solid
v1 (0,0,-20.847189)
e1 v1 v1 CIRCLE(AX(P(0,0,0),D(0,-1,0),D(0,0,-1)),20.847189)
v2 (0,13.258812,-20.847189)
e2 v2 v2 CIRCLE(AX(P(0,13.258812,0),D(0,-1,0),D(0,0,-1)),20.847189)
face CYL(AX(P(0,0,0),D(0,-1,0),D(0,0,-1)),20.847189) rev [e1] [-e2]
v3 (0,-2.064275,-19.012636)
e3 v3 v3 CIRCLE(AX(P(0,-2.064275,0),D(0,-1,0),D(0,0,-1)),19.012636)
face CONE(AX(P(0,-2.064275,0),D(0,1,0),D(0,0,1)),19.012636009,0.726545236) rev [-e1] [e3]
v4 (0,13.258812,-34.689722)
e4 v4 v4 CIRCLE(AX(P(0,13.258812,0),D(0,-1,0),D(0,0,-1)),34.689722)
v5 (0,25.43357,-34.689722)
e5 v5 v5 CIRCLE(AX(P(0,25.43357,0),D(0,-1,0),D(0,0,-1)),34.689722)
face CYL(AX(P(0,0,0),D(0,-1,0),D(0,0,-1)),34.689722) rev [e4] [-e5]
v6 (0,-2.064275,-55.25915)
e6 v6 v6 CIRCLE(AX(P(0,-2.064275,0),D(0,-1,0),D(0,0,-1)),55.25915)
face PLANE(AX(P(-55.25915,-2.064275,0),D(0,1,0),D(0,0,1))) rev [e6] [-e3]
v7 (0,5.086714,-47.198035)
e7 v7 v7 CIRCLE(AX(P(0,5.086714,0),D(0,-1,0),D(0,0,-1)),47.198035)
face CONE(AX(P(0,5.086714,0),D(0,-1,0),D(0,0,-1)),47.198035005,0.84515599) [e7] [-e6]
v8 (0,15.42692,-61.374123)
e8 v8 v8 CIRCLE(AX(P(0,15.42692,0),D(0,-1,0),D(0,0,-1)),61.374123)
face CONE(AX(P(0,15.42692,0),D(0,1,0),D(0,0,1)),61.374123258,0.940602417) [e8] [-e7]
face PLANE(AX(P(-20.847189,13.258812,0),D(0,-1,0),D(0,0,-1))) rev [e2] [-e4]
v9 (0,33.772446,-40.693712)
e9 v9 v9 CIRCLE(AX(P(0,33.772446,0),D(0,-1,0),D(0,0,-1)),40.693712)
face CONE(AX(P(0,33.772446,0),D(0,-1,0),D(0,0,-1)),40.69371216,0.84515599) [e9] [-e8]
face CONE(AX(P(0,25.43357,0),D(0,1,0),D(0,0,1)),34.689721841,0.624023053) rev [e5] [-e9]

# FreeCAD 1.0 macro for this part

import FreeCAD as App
import Part
import Sketcher

V = App.Vector
Q = App.Units.Quantity

doc = App.newDocument("Part")
body = doc.addObject("PartDesign::Body", "Body")

sketch1 = body.newObject("Sketcher::SketchObject", "Sketch")
sketch1.AttachmentSupport = (doc.getObject("XY_Plane"), [""])
sketch1.MapMode = "FlatFace"
sketch1.addGeometry(Part.LineSegment(V(-20.8, 0, 0), V(-20.8, 13.3, 0)), False)
sketch1.addGeometry(Part.LineSegment(V(-20.8, 13.3, 0), V(-34.7, 13.3, 0)), False)
sketch1.addGeometry(Part.LineSegment(V(-34.7, 13.3, 0), V(-34.7, 25.4, 0)), False)
sketch1.addGeometry(Part.LineSegment(V(-34.7, 25.4, 0), V(-40.7, 33.8, 0)), False)
sketch1.addGeometry(Part.LineSegment(V(-40.7, 33.8, 0), V(-61.4, 15.4, 0)), False)
sketch1.addGeometry(Part.LineSegment(V(-61.4, 15.4, 0), V(-47.2, 5.1, 0)), False)
sketch1.addGeometry(Part.LineSegment(V(-47.2, 5.1, 0), V(-55.3, -2.1, 0)), False)
sketch1.addGeometry(Part.LineSegment(V(-55.3, -2.1, 0), V(-19, -2.1, 0)), False)
sketch1.addGeometry(Part.LineSegment(V(-19, -2.1, 0), V(-20.8, 0, 0)), False)
sketch1.addConstraint(Sketcher.Constraint("Coincident", 0, 2, 1, 1))
sketch1.addConstraint(Sketcher.Constraint("Coincident", 1, 2, 2, 1))
sketch1.addConstraint(Sketcher.Constraint("Coincident", 2, 2, 3, 1))
sketch1.addConstraint(Sketcher.Constraint("Coincident", 3, 2, 4, 1))
sketch1.addConstraint(Sketcher.Constraint("Coincident", 4, 2, 5, 1))
sketch1.addConstraint(Sketcher.Constraint("Coincident", 5, 2, 6, 1))
sketch1.addConstraint(Sketcher.Constraint("Coincident", 6, 2, 7, 1))
sketch1.addConstraint(Sketcher.Constraint("Coincident", 7, 2, 8, 1))
sketch1.addConstraint(Sketcher.Constraint("Coincident", 8, 2, 0, 1))
sketch1.addConstraint(Sketcher.Constraint("Vertical", 0))
sketch1.addConstraint(Sketcher.Constraint("Horizontal", 1))
sketch1.addConstraint(Sketcher.Constraint("Vertical", 2))
sketch1.addConstraint(Sketcher.Constraint("Horizontal", 7))
sketch1.addConstraint(Sketcher.Constraint("PointOnObject", 8, 2, -1))
sketch1.addConstraint(Sketcher.Constraint("Parallel", 4, 6))
sketch1.addConstraint(Sketcher.Constraint("DistanceY", 0, 1, 0, 2, Q("13.258812 mm")))
sketch1.addConstraint(Sketcher.Constraint("DistanceY", 2, 1, 2, 2, Q("12.174758 mm")))
sketch1.addConstraint(Sketcher.Constraint("DistanceX", 4, 2, 1, 2, Q("26.684401 mm")))
sketch1.addConstraint(Sketcher.Constraint("DistanceX", 5, 2, 7, 2, Q("28.185399 mm")))
sketch1.addConstraint(Sketcher.Constraint("Distance", 4, Q("27.64485 mm")))
sketch1.addConstraint(Sketcher.Constraint("Distance", 8, Q("2.761669 mm")))
sketch1.addConstraint(Sketcher.Constraint("DistanceX", 1, 2, 1, 1, Q("13.842533 mm")))
sketch1.addConstraint(Sketcher.Constraint("DistanceX", 7, 1, 7, 2, Q("36.246514 mm")))
sketch1.addConstraint(Sketcher.Constraint("DistanceX", 0, 2, -1, 1, Q("20.847189 mm")))
sketch1.addConstraint(Sketcher.Constraint("DistanceY", -1, 1, 4, 2, Q("15.42692 mm")))
sketch1.addConstraint(Sketcher.Constraint("DistanceX", 6, 2, -1, 1, Q("55.25915 mm")))
sketch1.addConstraint(Sketcher.Constraint("DistanceX", 3, 2, 2, 2, Q("6.00399 mm")))
revolution = body.newObject("PartDesign::Revolution", "Revolution")
revolution.Profile = sketch1
revolution.ReferenceAxis = (sketch1, ["V_Axis"])
revolution.Angle = 360

doc.recompute()
